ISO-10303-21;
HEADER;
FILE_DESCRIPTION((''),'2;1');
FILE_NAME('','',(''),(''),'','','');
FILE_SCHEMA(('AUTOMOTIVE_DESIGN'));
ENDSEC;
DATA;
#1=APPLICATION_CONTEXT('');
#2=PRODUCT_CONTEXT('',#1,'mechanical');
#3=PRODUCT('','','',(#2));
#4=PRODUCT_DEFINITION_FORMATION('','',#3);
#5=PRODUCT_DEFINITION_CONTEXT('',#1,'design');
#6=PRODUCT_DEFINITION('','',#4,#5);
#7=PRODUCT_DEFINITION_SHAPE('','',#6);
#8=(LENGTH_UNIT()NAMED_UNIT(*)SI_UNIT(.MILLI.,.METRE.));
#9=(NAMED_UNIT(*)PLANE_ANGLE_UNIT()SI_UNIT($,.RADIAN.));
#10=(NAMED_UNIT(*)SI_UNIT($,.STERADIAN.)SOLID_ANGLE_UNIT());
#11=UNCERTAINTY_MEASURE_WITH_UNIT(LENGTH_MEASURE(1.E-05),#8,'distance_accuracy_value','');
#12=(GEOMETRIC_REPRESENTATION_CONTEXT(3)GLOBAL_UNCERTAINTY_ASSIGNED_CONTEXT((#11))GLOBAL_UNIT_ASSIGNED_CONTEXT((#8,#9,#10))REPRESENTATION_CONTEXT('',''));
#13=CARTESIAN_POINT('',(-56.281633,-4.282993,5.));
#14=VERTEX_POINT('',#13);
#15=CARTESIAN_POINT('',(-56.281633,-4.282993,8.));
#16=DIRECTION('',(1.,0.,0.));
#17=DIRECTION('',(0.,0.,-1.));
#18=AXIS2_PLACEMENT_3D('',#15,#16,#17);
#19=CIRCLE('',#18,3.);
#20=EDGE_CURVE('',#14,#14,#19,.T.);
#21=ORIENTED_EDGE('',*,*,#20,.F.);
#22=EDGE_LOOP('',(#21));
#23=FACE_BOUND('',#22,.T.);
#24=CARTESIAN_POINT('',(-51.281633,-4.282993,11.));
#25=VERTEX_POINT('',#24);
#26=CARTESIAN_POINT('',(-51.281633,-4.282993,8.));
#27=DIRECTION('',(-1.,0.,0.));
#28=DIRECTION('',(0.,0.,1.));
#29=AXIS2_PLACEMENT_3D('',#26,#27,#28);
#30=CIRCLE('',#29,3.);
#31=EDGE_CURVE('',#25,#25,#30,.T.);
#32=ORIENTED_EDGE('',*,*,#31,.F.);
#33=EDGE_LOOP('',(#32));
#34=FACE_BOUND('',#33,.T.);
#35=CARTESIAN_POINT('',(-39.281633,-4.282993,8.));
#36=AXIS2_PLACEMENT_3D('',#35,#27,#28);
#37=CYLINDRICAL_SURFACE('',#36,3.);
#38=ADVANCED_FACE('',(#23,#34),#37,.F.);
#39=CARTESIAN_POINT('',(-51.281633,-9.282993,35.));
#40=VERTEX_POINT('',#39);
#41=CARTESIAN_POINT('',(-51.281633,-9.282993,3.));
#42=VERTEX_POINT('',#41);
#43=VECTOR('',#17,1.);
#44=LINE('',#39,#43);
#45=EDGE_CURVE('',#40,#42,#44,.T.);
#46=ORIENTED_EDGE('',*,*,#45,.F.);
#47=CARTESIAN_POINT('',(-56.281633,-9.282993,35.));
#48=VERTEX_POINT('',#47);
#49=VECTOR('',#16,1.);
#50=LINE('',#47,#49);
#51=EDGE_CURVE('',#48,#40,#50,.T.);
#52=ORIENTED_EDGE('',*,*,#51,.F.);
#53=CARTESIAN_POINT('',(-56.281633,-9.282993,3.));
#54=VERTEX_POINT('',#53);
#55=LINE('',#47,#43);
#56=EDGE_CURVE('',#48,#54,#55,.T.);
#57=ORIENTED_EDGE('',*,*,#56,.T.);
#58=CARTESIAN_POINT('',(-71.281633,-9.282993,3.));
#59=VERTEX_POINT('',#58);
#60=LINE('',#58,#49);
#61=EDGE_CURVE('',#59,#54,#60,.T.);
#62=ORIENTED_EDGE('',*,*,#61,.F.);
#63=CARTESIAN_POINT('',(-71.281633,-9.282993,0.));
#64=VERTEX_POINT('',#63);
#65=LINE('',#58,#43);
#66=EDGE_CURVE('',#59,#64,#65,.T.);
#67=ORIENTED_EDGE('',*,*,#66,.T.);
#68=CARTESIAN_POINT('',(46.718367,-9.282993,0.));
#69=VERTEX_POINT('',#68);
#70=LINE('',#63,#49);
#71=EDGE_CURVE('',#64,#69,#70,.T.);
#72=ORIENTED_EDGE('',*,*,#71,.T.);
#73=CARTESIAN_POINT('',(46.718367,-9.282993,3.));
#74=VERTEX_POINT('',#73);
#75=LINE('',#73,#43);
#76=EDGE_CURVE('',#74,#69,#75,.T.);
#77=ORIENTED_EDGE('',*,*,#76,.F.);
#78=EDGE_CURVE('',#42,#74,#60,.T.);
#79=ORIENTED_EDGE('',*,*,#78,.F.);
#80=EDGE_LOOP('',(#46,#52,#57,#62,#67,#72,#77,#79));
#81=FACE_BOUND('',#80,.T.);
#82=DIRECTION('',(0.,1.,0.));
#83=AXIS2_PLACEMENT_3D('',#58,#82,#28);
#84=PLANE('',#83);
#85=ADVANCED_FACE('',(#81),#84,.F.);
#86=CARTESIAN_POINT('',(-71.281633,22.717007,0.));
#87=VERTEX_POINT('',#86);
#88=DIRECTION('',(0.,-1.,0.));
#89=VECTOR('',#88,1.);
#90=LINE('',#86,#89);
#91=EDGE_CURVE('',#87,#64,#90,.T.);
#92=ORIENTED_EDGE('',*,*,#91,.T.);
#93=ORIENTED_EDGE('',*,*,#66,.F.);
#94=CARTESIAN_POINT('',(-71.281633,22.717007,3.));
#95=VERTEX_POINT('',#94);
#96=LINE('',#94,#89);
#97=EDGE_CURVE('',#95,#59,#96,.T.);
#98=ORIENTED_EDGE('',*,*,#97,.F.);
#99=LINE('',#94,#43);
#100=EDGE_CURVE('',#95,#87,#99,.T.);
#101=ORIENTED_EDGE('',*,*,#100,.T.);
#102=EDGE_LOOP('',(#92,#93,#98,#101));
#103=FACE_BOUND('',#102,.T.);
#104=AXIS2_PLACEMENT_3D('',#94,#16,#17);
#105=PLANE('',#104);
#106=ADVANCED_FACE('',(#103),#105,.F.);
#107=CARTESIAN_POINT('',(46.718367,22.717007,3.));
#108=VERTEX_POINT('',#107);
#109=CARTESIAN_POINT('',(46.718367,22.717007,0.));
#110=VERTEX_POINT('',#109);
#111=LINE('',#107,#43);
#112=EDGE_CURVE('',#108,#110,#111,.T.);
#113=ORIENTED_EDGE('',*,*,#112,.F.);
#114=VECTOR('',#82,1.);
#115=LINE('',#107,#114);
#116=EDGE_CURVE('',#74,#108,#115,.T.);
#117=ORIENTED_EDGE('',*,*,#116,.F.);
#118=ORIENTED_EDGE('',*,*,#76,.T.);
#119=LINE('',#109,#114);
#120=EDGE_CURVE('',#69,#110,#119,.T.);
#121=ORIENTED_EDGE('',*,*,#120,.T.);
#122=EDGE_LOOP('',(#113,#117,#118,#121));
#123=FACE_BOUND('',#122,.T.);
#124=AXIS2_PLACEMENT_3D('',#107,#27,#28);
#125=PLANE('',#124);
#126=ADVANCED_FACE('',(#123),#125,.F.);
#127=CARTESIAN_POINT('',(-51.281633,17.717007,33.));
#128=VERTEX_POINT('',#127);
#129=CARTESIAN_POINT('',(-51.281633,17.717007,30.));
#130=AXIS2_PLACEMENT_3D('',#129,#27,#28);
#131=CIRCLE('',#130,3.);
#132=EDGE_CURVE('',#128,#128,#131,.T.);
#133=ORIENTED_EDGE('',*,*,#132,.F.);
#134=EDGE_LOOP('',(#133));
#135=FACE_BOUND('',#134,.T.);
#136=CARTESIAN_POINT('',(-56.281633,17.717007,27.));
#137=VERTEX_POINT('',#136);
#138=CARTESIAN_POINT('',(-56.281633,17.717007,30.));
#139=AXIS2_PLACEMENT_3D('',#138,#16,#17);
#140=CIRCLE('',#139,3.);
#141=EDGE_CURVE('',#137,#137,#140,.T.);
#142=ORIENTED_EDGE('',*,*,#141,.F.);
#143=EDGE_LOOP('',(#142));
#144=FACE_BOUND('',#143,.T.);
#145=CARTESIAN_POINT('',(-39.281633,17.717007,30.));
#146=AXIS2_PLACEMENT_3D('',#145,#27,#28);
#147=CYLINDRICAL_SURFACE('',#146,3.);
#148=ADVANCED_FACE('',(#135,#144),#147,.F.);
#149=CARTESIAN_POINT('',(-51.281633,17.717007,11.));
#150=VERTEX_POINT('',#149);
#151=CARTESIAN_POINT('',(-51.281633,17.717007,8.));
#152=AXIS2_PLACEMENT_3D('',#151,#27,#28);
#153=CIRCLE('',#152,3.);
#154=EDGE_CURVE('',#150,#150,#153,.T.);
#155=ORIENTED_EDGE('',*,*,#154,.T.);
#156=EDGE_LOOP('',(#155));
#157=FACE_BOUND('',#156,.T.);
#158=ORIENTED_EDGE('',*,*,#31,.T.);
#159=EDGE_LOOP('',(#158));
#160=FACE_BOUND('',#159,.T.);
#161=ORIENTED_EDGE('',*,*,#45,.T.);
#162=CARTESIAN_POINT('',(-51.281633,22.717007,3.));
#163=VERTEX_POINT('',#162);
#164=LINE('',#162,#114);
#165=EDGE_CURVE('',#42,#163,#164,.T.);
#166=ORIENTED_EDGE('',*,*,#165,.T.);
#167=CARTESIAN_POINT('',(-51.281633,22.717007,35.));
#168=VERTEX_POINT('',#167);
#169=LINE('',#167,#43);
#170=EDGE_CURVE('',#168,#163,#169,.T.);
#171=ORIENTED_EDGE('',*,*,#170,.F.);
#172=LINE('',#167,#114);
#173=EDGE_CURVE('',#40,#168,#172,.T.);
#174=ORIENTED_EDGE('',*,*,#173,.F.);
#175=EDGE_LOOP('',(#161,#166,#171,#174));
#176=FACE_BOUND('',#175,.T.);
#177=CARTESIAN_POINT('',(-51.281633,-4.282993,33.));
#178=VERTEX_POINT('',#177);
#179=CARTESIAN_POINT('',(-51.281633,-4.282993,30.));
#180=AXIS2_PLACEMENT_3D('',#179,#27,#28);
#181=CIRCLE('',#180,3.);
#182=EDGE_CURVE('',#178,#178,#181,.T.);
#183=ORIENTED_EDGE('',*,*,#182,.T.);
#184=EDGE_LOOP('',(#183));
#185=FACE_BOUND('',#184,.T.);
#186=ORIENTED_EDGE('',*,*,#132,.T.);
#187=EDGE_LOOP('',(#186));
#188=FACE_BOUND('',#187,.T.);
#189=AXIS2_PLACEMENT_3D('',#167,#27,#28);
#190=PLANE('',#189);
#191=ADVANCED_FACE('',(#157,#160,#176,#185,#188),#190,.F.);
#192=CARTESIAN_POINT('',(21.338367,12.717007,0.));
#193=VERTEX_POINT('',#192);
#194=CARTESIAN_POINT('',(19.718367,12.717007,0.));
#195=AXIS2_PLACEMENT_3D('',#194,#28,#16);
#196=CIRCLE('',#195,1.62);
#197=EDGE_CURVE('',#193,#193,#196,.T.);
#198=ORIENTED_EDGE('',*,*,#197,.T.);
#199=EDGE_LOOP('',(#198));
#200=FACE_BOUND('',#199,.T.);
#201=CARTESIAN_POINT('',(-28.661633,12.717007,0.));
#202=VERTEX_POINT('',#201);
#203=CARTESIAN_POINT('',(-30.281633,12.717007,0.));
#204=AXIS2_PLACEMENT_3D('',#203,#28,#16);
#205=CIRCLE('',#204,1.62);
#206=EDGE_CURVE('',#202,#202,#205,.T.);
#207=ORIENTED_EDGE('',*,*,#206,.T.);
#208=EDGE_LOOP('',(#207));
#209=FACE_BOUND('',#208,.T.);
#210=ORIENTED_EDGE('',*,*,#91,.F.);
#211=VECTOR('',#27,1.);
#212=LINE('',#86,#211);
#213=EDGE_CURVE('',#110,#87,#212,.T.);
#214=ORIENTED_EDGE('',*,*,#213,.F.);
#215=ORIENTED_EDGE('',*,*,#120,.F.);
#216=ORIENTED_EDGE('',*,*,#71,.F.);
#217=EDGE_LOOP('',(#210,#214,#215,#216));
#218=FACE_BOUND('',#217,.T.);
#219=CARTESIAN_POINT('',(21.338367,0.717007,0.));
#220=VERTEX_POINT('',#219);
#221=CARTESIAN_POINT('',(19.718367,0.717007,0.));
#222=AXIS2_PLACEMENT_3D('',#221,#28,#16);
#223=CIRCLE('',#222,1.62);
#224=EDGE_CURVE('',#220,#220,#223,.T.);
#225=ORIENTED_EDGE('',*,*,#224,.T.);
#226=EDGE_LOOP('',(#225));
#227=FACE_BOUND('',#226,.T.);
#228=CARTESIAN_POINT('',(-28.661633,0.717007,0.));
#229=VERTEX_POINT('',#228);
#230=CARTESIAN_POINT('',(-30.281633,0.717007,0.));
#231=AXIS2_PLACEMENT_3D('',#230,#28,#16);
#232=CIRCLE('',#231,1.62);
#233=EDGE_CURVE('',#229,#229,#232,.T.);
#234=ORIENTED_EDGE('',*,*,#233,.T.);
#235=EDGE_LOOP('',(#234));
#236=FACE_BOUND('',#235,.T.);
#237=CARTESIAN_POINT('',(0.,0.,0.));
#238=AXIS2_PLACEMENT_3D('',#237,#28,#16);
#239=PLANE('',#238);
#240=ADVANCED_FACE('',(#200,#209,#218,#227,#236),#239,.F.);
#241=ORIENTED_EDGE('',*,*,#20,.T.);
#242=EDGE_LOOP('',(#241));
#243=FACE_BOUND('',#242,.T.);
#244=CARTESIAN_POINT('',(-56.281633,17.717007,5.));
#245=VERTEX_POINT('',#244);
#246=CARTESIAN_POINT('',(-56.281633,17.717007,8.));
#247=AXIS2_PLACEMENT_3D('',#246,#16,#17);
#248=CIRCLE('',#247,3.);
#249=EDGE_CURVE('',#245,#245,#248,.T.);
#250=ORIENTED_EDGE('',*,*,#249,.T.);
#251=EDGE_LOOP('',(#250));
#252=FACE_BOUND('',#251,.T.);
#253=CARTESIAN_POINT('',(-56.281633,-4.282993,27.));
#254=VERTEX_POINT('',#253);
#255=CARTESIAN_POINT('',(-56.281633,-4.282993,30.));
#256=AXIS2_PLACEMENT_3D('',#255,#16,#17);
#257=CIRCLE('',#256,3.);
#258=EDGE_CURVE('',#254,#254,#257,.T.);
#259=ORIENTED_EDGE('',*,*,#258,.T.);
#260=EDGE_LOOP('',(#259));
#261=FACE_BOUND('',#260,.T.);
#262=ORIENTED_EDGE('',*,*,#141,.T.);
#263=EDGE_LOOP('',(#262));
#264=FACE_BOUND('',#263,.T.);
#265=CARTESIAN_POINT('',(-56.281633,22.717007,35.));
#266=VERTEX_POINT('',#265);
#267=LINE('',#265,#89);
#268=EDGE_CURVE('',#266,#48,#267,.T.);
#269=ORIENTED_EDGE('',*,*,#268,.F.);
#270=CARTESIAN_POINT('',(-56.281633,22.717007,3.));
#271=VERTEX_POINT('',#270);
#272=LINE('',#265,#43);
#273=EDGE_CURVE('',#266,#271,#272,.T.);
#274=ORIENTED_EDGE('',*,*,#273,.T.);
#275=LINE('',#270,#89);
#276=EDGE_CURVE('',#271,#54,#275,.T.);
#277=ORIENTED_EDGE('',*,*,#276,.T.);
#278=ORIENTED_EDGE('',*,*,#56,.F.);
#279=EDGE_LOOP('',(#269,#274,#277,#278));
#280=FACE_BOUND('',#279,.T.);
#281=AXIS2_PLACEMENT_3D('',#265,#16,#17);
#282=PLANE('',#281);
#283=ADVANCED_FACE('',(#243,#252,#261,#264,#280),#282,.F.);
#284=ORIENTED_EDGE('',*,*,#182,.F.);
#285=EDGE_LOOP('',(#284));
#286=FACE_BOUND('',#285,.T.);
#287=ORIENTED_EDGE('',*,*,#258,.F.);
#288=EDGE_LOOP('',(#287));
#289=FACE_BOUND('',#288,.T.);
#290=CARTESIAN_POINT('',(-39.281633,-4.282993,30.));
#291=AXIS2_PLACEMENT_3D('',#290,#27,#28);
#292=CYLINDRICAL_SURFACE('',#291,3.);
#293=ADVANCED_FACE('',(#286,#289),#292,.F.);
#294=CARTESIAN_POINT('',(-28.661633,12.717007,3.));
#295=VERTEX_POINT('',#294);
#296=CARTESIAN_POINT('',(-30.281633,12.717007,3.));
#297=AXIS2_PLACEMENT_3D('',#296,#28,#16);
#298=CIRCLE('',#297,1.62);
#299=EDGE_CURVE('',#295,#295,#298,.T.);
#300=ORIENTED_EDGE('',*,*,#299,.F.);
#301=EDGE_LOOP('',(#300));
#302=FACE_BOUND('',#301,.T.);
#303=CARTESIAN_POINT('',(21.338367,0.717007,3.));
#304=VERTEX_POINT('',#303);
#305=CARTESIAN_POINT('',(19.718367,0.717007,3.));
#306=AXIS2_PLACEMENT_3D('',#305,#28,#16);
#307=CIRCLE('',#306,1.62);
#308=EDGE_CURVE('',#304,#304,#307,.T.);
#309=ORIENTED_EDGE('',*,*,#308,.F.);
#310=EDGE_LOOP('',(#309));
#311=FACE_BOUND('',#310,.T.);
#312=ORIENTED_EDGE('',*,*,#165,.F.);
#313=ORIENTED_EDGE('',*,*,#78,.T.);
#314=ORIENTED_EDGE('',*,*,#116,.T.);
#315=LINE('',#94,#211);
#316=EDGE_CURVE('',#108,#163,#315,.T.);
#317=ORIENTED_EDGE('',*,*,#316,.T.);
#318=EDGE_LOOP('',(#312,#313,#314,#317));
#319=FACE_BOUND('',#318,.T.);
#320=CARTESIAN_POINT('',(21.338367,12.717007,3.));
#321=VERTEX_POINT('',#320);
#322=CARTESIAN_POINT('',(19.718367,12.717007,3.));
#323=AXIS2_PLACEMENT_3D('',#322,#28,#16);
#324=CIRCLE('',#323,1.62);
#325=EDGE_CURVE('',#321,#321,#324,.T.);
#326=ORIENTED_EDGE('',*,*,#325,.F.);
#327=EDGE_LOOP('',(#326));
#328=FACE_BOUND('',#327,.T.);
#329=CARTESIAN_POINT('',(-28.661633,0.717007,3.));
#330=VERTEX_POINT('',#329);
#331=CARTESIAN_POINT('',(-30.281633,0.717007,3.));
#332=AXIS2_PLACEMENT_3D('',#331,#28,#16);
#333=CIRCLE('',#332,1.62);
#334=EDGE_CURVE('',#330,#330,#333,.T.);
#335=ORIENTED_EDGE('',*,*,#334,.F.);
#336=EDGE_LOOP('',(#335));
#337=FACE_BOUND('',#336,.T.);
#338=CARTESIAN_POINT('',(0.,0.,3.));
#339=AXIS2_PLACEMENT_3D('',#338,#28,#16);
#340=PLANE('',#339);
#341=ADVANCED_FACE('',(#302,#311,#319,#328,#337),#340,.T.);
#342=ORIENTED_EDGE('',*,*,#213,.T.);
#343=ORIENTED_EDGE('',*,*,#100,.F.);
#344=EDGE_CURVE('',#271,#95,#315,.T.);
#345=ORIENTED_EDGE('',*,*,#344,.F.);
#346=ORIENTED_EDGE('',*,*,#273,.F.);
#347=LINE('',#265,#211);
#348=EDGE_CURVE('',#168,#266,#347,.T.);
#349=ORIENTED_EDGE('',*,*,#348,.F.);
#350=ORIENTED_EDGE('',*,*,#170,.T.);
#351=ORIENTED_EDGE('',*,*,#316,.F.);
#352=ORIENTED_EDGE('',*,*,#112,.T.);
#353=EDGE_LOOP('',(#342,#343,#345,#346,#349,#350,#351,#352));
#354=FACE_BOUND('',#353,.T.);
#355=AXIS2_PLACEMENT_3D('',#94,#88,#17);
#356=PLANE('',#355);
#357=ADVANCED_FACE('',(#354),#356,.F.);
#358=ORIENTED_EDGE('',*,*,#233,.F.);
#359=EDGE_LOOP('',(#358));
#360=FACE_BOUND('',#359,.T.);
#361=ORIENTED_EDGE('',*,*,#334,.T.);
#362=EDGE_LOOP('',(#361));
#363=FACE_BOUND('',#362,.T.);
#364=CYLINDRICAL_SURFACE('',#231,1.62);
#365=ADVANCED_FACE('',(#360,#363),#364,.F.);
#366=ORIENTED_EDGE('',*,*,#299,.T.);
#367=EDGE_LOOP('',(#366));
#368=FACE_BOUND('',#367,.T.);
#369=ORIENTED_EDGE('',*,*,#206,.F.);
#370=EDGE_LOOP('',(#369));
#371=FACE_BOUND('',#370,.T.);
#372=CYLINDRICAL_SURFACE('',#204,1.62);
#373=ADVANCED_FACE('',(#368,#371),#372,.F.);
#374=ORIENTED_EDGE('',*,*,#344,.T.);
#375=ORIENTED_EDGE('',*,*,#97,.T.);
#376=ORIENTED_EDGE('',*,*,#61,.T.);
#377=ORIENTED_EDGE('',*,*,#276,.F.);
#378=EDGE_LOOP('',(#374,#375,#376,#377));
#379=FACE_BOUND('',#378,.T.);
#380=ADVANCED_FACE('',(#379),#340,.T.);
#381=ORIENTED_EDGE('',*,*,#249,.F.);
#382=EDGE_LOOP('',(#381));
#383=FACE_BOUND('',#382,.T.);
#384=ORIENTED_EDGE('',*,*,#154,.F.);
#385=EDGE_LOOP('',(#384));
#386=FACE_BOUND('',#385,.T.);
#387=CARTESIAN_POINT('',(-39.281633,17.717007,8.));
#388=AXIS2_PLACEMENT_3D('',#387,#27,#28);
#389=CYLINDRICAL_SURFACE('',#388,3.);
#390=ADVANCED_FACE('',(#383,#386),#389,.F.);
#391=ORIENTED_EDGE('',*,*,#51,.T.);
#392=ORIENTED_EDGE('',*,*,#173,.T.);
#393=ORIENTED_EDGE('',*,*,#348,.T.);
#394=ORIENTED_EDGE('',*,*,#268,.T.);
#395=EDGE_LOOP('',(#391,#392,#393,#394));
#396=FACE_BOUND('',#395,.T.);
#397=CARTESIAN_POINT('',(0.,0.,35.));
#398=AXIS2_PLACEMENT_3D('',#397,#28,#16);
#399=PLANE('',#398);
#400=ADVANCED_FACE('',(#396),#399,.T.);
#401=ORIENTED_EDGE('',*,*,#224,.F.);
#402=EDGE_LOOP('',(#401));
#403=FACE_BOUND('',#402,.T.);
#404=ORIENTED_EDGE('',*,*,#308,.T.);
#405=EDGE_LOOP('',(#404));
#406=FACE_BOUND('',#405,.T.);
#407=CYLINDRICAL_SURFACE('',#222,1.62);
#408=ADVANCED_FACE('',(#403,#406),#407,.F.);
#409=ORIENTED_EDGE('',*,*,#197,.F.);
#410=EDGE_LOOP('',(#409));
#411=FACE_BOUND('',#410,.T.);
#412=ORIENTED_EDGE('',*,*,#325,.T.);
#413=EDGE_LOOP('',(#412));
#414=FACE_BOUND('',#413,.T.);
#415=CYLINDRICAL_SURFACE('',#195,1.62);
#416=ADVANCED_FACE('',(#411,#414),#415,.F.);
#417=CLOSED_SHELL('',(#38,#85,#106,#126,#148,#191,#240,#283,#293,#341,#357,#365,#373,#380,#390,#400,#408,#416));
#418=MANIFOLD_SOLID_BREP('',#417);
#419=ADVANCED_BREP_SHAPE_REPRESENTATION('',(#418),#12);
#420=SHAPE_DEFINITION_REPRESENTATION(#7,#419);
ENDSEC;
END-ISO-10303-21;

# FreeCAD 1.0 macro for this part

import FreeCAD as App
import Part
import Sketcher
from FreeCAD import Vector


def add_polygon(sketch, points):
    """Adds a closed chain of lines whose ends are joined by coincident constraints."""
    first, n = sketch.GeometryCount, len(points)
    for a, b in zip(points, points[1:] + points[:1]):
        sketch.addGeometry(Part.LineSegment(App.Vector(*a, 0), App.Vector(*b, 0)), False)
    for i in range(n):
        sketch.addConstraint(Sketcher.Constraint("Coincident", first + i, 2, first + (i + 1) % n, 1))

doc = App.newDocument("Part")
body = doc.addObject("PartDesign::Body", "Body")

# Sketch on XY plane
sketch1 = doc.addObject("Sketcher::SketchObject", "Sketch")
body.addObject(sketch1)
sketch1.AttachmentSupport = (doc.XY_Plane, [""])
sketch1.MapMode = "FlatFace"
add_polygon(sketch1, [(-71.281633, 22.717007), (-71.281633, -9.282993), (46.718367, -9.282993), (46.718367, 22.717007)])  # lines 0-3
sketch1.addConstraint(Sketcher.Constraint("Vertical", 0))
sketch1.addConstraint(Sketcher.Constraint("Horizontal", 1))
sketch1.addConstraint(Sketcher.Constraint("Vertical", 2))
sketch1.addConstraint(Sketcher.Constraint("Horizontal", 3))
sketch1.addConstraint(Sketcher.Constraint("DistanceX", 1, 1, 1, 2, 118.0))
sketch1.addConstraint(Sketcher.Constraint("DistanceY", 0, 2, 0, 1, 32.0))
sketch1.addConstraint(Sketcher.Constraint("DistanceX", 0, 2, -1, 1, 71.281633))
sketch1.addConstraint(Sketcher.Constraint("DistanceY", 0, 2, -1, 1, 9.282993))
pad1 = doc.addObject("PartDesign::Pad", "Pad")
body.addObject(pad1)
pad1.Profile = sketch1
pad1.Length = 3

# Sketch on XY plane
sketch2 = doc.addObject("Sketcher::SketchObject", "Sketch001")
body.addObject(sketch2)
sketch2.AttachmentSupport = (doc.XY_Plane, [""])
sketch2.MapMode = "FlatFace"
sketch2.AttachmentOffset = App.Placement(Vector(0, 0, 3), App.Rotation())
sketch2.addGeometry(Part.Circle(Vector(-30.281633, 12.717007, 0), Vector(0, 0, 1), 1.62), False)
sketch2.addGeometry(Part.Circle(Vector(-30.281633, 0.717007, 0), Vector(0, 0, 1), 1.62), False)
sketch2.addGeometry(Part.Circle(Vector(19.718367, 12.717007, 0), Vector(0, 0, 1), 1.62), False)
sketch2.addGeometry(Part.Circle(Vector(19.718367, 0.717007, 0), Vector(0, 0, 1), 1.62), False)
sketch2.addConstraint(Sketcher.Constraint("Equal", 0, 1))
sketch2.addConstraint(Sketcher.Constraint("Equal", 1, 2))
sketch2.addConstraint(Sketcher.Constraint("Equal", 2, 3))
sketch2.addConstraint(Sketcher.Constraint("Horizontal", 0, 3, 2, 3))
sketch2.addConstraint(Sketcher.Constraint("Horizontal", 1, 3, 3, 3))
sketch2.addConstraint(Sketcher.Constraint("Vertical", 0, 3, 1, 3))
sketch2.addConstraint(Sketcher.Constraint("Vertical", 2, 3, 3, 3))
sketch2.addConstraint(Sketcher.Constraint("Diameter", 0, 3.24))
sketch2.addConstraint(Sketcher.Constraint("DistanceY", 1, 3, 0, 3, 12.0))
sketch2.addConstraint(Sketcher.Constraint("DistanceX", 0, 3, 2, 3, 50.0))
sketch2.addConstraint(Sketcher.Constraint("DistanceX", 0, 3, -1, 1, 30.281633))
sketch2.addConstraint(Sketcher.Constraint("DistanceY", -1, 1, 0, 3, 12.717007))
pocket1 = doc.addObject("PartDesign::Pocket", "Pocket")
body.addObject(pocket1)
pocket1.Profile = sketch2
pocket1.Length = 3

# Sketch on XY plane
sketch3 = doc.addObject("Sketcher::SketchObject", "Sketch002")
body.addObject(sketch3)
sketch3.AttachmentSupport = (doc.XY_Plane, [""])
sketch3.MapMode = "FlatFace"
sketch3.AttachmentOffset = App.Placement(Vector(0, 0, 3), App.Rotation())
add_polygon(sketch3, [(-56.281633, 22.717007), (-56.281633, -9.282993), (-51.281633, -9.282993), (-51.281633, 22.717007)])  # lines 0-3
sketch3.addConstraint(Sketcher.Constraint("Vertical", 0))
sketch3.addConstraint(Sketcher.Constraint("Horizontal", 1))
sketch3.addConstraint(Sketcher.Constraint("Vertical", 2))
sketch3.addConstraint(Sketcher.Constraint("Horizontal", 3))
sketch3.addConstraint(Sketcher.Constraint("DistanceX", 1, 1, 1, 2, 5.0))
sketch3.addConstraint(Sketcher.Constraint("DistanceY", 0, 2, 0, 1, 32.0))
sketch3.addConstraint(Sketcher.Constraint("DistanceX", 0, 2, -1, 1, 56.281633))
sketch3.addConstraint(Sketcher.Constraint("DistanceY", 0, 2, -1, 1, 9.282993))
pad2 = doc.addObject("PartDesign::Pad", "Pad001")
body.addObject(pad2)
pad2.Profile = sketch3
pad2.Length = 32

# Sketch on YZ plane
sketch4 = doc.addObject("Sketcher::SketchObject", "Sketch003")
body.addObject(sketch4)
sketch4.AttachmentSupport = (doc.YZ_Plane, [""])
sketch4.MapMode = "FlatFace"
sketch4.AttachmentOffset = App.Placement(Vector(0, 0, -71.281633), App.Rotation())
sketch4.addGeometry(Part.Circle(Vector(17.717007, 30, 0), Vector(0, 0, 1), 3), False)
sketch4.addGeometry(Part.Circle(Vector(-4.282993, 30, 0), Vector(0, 0, 1), 3), False)
sketch4.addGeometry(Part.Circle(Vector(17.717007, 8, 0), Vector(0, 0, 1), 3), False)
sketch4.addGeometry(Part.Circle(Vector(-4.282993, 8, 0), Vector(0, 0, 1), 3), False)
sketch4.addConstraint(Sketcher.Constraint("Equal", 0, 1))
sketch4.addConstraint(Sketcher.Constraint("Equal", 1, 2))
sketch4.addConstraint(Sketcher.Constraint("Equal", 2, 3))
sketch4.addConstraint(Sketcher.Constraint("Horizontal", 0, 3, 1, 3))
sketch4.addConstraint(Sketcher.Constraint("Horizontal", 2, 3, 3, 3))
sketch4.addConstraint(Sketcher.Constraint("Vertical", 0, 3, 2, 3))
sketch4.addConstraint(Sketcher.Constraint("Vertical", 1, 3, 3, 3))
sketch4.addConstraint(Sketcher.Constraint("Diameter", 0, 6.0))
sketch4.addConstraint(Sketcher.Constraint("DistanceY", -1, 1, 0, 3, 30.0))
sketch4.addConstraint(Sketcher.Constraint("DistanceY", -1, 1, 2, 3, 8.0))
sketch4.addConstraint(Sketcher.Constraint("DistanceX", 1, 3, 0, 3, 22.0))
sketch4.addConstraint(Sketcher.Constraint("DistanceX", -1, 1, 0, 3, 17.717007))
pocket2 = doc.addObject("PartDesign::Pocket", "Pocket001")
body.addObject(pocket2)
pocket2.Profile = sketch4
pocket2.Length = 32
pocket2.Reversed = True

doc.recompute()
